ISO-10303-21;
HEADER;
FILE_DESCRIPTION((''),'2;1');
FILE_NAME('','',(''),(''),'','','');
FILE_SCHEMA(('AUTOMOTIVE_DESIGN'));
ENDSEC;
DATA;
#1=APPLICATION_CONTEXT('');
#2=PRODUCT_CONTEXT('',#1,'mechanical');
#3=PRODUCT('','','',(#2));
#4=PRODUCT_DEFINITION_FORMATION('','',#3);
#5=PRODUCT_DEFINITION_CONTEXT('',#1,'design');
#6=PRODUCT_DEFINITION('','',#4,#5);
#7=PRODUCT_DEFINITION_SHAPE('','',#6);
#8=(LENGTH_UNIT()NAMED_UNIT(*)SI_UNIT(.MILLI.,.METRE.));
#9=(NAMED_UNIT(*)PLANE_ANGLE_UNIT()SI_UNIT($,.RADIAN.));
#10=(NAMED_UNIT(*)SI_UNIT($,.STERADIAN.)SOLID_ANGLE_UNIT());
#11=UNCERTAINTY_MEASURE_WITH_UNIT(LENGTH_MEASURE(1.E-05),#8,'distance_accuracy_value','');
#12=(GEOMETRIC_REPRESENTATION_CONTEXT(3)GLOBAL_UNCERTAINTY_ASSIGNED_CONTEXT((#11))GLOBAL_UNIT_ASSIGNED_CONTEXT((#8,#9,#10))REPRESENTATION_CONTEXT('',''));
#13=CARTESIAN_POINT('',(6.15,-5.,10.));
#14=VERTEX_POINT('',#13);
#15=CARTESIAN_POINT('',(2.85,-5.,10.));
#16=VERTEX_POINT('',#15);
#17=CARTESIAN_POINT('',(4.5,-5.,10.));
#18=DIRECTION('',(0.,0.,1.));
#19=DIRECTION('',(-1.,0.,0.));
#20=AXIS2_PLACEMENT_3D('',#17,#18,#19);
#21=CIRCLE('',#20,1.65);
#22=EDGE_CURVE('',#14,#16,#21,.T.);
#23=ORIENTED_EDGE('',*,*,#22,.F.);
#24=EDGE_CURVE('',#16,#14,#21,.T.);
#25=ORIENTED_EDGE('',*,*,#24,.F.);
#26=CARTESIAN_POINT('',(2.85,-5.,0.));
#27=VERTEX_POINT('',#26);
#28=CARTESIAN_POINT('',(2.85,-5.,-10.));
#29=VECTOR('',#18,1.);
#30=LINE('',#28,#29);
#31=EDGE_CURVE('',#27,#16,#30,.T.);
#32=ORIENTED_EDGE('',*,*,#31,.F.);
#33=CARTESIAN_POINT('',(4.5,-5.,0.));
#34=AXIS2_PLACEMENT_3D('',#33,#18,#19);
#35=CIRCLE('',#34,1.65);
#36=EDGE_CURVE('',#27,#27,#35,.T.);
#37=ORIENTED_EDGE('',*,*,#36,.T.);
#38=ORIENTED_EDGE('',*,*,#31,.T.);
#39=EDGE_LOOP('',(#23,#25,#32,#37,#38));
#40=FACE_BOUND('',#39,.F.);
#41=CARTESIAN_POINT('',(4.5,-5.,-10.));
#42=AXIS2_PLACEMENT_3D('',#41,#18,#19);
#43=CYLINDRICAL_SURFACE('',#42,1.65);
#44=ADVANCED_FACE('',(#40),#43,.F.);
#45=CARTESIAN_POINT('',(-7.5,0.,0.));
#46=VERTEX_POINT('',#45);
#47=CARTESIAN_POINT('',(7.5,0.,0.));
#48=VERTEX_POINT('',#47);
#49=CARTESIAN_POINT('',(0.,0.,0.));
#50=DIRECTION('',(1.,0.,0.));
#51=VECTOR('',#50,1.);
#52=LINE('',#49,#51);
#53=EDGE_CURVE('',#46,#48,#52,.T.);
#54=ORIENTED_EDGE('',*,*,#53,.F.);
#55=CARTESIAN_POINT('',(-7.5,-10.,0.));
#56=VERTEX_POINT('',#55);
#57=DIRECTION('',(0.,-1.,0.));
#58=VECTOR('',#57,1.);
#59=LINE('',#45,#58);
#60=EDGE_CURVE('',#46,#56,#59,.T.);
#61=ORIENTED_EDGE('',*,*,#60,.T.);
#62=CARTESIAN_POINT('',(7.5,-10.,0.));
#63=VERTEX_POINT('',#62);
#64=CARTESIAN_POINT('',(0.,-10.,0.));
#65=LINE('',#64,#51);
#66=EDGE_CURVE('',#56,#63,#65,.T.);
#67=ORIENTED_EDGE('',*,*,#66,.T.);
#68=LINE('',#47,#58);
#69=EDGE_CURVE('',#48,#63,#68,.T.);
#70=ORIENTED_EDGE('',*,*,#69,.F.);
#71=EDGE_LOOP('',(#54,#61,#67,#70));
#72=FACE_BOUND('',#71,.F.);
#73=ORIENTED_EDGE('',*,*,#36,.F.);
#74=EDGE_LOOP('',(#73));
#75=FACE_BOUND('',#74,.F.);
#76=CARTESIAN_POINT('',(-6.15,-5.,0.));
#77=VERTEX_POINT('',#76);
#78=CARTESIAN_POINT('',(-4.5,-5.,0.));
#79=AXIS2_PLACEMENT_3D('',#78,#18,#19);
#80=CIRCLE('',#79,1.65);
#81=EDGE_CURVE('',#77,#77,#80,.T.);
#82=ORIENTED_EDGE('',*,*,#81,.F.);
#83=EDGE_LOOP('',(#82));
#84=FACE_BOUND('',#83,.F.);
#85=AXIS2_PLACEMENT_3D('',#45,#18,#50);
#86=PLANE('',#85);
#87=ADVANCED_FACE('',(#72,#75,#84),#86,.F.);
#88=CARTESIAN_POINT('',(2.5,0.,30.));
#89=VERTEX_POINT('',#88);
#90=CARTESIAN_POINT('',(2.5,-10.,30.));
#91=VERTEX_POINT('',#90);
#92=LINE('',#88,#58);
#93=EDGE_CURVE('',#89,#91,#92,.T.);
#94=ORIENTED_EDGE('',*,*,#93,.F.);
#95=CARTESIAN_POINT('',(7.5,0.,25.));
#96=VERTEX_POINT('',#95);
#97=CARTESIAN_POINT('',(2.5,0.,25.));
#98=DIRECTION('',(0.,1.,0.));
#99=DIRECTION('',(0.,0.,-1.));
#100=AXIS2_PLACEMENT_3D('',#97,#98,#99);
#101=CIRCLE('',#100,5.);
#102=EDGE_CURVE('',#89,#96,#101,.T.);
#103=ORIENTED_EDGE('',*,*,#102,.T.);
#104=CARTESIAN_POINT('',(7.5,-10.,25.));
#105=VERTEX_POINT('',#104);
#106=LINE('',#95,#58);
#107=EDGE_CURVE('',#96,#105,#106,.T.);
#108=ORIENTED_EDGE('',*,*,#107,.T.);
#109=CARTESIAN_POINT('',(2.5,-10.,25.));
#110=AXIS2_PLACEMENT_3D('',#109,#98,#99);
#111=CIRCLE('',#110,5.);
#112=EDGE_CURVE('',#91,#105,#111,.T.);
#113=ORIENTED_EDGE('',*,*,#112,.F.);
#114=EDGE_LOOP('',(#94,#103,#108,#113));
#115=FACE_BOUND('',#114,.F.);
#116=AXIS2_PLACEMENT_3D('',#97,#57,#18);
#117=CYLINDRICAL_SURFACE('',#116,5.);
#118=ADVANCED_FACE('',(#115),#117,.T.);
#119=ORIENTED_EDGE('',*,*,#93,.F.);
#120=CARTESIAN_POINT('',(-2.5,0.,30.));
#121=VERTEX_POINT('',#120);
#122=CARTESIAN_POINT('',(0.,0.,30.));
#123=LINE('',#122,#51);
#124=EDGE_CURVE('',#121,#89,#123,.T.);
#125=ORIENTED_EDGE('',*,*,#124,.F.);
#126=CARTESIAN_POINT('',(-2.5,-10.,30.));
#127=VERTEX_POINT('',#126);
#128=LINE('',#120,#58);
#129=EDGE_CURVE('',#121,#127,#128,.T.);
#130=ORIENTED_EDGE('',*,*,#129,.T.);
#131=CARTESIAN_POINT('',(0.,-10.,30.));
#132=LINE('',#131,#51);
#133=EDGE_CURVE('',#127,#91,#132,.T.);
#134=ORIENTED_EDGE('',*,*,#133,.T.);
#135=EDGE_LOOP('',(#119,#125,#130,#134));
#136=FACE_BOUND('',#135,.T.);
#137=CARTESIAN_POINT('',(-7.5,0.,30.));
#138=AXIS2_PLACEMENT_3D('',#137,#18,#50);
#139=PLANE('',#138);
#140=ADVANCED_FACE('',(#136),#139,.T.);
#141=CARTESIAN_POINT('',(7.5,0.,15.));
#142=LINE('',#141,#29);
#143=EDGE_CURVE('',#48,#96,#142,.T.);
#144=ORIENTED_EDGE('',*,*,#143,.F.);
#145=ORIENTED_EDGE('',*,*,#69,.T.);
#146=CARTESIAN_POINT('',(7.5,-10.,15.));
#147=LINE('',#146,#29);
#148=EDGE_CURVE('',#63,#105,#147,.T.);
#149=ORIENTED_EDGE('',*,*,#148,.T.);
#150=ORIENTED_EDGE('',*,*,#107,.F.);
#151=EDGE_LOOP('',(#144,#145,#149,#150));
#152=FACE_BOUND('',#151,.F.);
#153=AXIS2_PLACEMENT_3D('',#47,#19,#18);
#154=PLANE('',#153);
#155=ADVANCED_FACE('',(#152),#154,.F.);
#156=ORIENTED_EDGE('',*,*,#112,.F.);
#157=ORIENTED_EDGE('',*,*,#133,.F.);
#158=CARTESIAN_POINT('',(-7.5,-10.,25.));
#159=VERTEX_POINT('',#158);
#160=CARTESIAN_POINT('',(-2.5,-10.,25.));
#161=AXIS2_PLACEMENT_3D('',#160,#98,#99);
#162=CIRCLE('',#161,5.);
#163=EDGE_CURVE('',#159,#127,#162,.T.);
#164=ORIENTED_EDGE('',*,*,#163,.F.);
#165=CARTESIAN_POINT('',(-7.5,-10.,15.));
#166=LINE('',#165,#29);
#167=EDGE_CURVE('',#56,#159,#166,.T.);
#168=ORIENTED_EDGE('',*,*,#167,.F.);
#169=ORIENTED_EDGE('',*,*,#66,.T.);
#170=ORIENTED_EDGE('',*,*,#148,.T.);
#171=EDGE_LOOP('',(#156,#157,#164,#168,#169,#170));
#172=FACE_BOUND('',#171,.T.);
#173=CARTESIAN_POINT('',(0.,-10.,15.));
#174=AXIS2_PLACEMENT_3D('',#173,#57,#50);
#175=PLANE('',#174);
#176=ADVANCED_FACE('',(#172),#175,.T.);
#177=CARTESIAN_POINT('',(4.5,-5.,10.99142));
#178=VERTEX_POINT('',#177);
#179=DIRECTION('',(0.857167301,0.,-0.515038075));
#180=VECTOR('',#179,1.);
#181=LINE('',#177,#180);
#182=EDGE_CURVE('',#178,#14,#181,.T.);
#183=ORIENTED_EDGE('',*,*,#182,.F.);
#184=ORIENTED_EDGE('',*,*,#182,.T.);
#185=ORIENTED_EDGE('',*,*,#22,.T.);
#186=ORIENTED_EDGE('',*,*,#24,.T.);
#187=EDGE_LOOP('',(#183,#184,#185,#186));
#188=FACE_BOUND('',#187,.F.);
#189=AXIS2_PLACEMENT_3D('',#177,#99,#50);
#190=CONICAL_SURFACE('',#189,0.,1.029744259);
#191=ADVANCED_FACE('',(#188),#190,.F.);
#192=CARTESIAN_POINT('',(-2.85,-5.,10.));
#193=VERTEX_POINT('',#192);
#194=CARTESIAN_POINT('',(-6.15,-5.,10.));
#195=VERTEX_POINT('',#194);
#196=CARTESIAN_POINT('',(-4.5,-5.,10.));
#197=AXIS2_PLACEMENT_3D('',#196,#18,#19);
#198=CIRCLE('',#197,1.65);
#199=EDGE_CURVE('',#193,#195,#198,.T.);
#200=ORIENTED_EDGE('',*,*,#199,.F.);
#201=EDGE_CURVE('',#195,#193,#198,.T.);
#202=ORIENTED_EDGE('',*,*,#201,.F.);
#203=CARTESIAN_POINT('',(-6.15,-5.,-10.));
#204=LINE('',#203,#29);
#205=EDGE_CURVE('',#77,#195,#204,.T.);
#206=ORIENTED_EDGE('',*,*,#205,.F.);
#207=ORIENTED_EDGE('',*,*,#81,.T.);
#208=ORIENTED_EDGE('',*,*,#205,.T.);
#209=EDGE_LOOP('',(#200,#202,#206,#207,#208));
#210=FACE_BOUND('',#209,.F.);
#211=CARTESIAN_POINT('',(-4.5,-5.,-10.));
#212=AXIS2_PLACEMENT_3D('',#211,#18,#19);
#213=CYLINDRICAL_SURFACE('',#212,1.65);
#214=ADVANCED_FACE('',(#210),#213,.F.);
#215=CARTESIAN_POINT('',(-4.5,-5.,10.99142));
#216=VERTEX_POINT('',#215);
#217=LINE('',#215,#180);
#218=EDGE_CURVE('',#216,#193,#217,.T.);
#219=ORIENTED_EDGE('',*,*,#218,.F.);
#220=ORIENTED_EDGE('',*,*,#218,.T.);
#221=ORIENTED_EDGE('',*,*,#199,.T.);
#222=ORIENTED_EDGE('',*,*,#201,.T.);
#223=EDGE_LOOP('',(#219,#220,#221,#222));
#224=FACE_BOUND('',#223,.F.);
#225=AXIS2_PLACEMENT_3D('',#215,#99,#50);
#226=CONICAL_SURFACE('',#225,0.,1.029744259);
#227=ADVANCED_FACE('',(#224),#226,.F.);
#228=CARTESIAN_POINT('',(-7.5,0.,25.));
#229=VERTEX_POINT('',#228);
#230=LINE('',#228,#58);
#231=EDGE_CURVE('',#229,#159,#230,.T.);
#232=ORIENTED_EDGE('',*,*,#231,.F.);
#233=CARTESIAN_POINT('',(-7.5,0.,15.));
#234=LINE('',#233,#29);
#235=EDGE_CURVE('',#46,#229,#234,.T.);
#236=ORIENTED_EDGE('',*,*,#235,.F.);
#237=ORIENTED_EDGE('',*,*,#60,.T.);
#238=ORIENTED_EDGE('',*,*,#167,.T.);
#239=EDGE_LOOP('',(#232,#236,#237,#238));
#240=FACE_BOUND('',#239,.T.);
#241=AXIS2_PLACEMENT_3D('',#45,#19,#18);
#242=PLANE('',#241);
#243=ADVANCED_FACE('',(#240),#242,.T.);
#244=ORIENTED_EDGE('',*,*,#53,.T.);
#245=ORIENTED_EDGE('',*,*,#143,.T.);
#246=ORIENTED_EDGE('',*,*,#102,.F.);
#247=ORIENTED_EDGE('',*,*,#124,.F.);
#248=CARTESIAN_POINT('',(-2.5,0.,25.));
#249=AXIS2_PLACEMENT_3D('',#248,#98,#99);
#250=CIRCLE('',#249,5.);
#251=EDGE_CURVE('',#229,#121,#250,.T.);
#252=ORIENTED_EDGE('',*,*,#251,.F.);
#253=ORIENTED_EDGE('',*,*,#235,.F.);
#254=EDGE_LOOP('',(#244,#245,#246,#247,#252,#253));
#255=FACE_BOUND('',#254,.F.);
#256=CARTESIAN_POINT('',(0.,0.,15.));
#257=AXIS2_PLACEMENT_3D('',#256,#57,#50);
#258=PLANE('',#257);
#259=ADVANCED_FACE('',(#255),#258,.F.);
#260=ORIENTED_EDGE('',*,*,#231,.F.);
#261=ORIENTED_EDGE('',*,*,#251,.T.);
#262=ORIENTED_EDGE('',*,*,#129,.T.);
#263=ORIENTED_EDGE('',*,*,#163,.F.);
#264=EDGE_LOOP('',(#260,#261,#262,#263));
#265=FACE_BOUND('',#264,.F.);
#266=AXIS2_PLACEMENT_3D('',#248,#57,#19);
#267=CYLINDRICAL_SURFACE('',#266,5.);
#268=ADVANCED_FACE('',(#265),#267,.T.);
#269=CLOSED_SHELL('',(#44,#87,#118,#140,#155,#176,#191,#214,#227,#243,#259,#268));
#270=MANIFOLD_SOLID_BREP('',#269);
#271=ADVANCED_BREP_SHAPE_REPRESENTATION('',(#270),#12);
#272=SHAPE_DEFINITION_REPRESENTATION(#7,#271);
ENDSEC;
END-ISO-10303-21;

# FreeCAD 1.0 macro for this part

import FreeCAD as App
import Part
import Sketcher
Q = App.Units.Quantity


def edges_at(feature, points):
    """Names of the edges that pass closest to the given points."""
    edges = feature.Shape.Edges
    near = lambda p: min(range(len(edges)), key=lambda i: edges[i].distToShape(Part.Vertex(*p))[0])
    return sorted({f"Edge{near(p) + 1}" for p in points})


def add_polygon(sketch, points):
    """Adds a closed chain of lines whose ends are joined by coincident constraints."""
    first, n = sketch.GeometryCount, len(points)
    for a, b in zip(points, points[1:] + points[:1]):
        sketch.addGeometry(Part.LineSegment(App.Vector(*a, 0), App.Vector(*b, 0)), False)
    for i in range(n):
        sketch.addConstraint(Sketcher.Constraint("Coincident", first + i, 2, first + (i + 1) % n, 1))

doc = App.newDocument("Part")
body = doc.addObject("PartDesign::Body", "Body")

sketch1 = doc.addObject("Sketcher::SketchObject", "Sketch")
body.addObject(sketch1)
sketch1.AttachmentSupport = (doc.XZ_Plane, [""])
sketch1.MapMode = "FlatFace"
add_polygon(sketch1, [(-8, 30), (-8, 0), (8, 0), (8, 30)])
sketch1.addConstraint([
    Sketcher.Constraint("Vertical", 0),
    Sketcher.Constraint("Horizontal", 1),
    Sketcher.Constraint("Vertical", 2),
    Sketcher.Constraint("Horizontal", 3),
    Sketcher.Constraint("Symmetric", 0, 2, 1, 2, -1, 1),
    Sketcher.Constraint("DistanceX", 1, 1, 1, 2, Q("15 mm")),
    Sketcher.Constraint("DistanceY", 0, 2, 0, 1, Q("30 mm")),
])
pad1 = doc.addObject("PartDesign::Pad", "Pad")
body.addObject(pad1)
pad1.Profile = sketch1
pad1.Length = 10

sketch2 = doc.addObject("Sketcher::SketchObject", "Sketch001")
body.addObject(sketch2)
sketch2.AttachmentSupport = (doc.XY_Plane, [""])
sketch2.MapMode = "FlatFace"
sketch2.addGeometry([
    Part.Circle(App.Vector(-4.5, -5, 0), App.Vector(0, 0, 1), 1.6),
    Part.Circle(App.Vector(4.5, -5, 0), App.Vector(0, 0, 1), 1.6),
], False)
sketch2.addConstraint([
    Sketcher.Constraint("Equal", 0, 1),
    Sketcher.Constraint("Symmetric", 0, 3, 1, 3, -2),
    Sketcher.Constraint("Diameter", 0, Q("3.3 mm")),
    Sketcher.Constraint("DistanceY", 0, 3, -1, 1, Q("5 mm")),
    Sketcher.Constraint("DistanceX", 0, 3, 1, 3, Q("9 mm")),
])
doc.recompute()
hole = doc.addObject("PartDesign::Hole", "Hole")
body.addObject(hole)
hole.Profile = sketch2
hole.ThreadType = "None"
hole.Diameter = 3.3
hole.DepthType = "Dimension"
hole.Depth = 10
hole.DrillPoint = "Angled"
hole.DrillPointAngle = 118
hole.Reversed = True
doc.recompute()

fillet = doc.addObject("PartDesign::Fillet", "Fillet")
body.addObject(fillet)
fillet.Base = (hole, edges_at(hole, [(-7.5, -5, 30), (7.5, -5, 30)]))
fillet.Radius = 5

doc.recompute()
